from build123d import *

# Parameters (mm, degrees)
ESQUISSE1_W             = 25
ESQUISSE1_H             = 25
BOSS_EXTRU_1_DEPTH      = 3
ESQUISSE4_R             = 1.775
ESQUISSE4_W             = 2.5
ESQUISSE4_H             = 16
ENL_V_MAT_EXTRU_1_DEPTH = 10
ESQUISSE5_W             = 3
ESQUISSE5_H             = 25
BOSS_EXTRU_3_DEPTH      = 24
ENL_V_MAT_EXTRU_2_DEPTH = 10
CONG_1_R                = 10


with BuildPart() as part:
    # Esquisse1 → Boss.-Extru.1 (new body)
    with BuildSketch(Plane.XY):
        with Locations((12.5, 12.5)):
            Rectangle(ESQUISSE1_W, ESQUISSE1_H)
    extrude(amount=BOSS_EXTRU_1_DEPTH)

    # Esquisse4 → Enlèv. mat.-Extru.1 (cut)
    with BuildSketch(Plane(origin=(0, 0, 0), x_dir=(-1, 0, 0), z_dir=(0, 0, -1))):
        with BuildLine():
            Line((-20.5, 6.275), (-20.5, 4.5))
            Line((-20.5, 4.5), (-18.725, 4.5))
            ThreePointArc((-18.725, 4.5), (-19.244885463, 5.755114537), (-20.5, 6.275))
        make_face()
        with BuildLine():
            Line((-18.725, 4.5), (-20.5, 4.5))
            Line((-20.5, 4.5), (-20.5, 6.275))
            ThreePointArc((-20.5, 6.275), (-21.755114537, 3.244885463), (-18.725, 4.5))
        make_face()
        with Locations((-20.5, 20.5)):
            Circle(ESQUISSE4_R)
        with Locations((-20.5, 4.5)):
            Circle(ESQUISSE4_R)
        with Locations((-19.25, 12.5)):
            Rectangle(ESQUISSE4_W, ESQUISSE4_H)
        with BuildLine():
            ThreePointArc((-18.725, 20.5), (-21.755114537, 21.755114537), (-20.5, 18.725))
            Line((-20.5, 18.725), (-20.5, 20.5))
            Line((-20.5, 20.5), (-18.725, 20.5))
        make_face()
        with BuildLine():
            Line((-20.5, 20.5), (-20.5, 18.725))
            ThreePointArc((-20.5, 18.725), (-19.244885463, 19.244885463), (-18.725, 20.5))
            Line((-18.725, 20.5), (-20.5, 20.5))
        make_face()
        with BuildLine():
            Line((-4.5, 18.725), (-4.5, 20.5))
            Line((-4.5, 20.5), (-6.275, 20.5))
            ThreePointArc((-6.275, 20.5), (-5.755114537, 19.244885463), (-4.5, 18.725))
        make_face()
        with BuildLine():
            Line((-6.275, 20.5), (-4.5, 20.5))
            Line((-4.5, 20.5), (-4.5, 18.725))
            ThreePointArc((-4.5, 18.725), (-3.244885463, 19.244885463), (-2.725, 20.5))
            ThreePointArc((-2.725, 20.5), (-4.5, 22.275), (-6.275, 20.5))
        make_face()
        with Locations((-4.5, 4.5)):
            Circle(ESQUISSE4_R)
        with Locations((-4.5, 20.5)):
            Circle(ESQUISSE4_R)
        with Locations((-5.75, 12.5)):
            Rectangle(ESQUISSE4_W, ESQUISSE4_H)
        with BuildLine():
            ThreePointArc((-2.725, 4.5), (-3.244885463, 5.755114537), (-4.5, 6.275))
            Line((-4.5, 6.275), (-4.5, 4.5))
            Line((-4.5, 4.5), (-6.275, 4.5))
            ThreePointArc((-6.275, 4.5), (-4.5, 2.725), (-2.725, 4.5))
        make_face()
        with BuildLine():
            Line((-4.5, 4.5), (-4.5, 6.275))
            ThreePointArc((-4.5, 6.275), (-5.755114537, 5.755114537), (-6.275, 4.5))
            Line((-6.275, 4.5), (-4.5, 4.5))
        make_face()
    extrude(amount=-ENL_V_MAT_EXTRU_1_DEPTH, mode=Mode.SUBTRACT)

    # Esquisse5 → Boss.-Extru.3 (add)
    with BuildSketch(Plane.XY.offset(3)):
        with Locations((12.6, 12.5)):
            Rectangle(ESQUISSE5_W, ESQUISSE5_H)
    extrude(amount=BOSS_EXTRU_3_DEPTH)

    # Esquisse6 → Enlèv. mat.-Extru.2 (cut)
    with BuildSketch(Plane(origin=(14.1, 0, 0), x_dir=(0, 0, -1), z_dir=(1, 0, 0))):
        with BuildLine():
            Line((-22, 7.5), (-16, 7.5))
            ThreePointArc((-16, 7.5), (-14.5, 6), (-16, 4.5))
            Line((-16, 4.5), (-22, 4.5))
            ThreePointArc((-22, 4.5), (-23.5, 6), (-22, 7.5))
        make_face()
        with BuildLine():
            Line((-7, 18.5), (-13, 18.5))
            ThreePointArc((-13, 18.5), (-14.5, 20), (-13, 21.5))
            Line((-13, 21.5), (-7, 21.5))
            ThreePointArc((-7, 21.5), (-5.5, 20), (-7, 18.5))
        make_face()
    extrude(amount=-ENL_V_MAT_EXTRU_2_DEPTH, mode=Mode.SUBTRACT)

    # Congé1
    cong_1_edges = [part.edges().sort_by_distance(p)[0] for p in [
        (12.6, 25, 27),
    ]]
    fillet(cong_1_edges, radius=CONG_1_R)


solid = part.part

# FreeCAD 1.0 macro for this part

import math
import FreeCAD as App
import Part
import Sketcher
Q = App.Units.Quantity


def edges_at(feature, points):
    """Names of the edges that pass closest to the given points."""
    edges = feature.Shape.Edges
    near = lambda p: min(range(len(edges)), key=lambda i: edges[i].distToShape(Part.Vertex(*p))[0])
    return sorted({f"Edge{near(p) + 1}" for p in points})


def add_polygon(sketch, points):
    """Adds a closed chain of lines whose ends are joined by coincident constraints."""
    first, n = sketch.GeometryCount, len(points)
    for a, b in zip(points, points[1:] + points[:1]):
        sketch.addGeometry(Part.LineSegment(App.Vector(*a, 0), App.Vector(*b, 0)), False)
    for i in range(n):
        sketch.addConstraint(Sketcher.Constraint("Coincident", first + i, 2, first + (i + 1) % n, 1))

doc = App.newDocument("Part")
body = doc.addObject("PartDesign::Body", "Body")

# Sketch on XY plane
sketch1 = doc.addObject("Sketcher::SketchObject", "Sketch")
body.addObject(sketch1)
sketch1.AttachmentSupport = (doc.XY_Plane, [""])
sketch1.MapMode = "FlatFace"
add_polygon(sketch1, [(0, 25), (0, 0), (25, 0), (25, 25)])  # lines 0-3
sketch1.addConstraint(Sketcher.Constraint("Vertical", 0))
sketch1.addConstraint(Sketcher.Constraint("Horizontal", 1))
sketch1.addConstraint(Sketcher.Constraint("Vertical", 2))
sketch1.addConstraint(Sketcher.Constraint("Horizontal", 3))
sketch1.addConstraint(Sketcher.Constraint("Coincident", 0, 2, -1, 1))
sketch1.addConstraint(Sketcher.Constraint("Equal", 3, 0))
sketch1.addConstraint(Sketcher.Constraint("DistanceX", 1, 1, 1, 2, Q("25 mm")))
pad1 = doc.addObject("PartDesign::Pad", "Pad")
body.addObject(pad1)
pad1.Profile = sketch1
pad1.Length = 3

# Sketch on XY plane
sketch2 = doc.addObject("Sketcher::SketchObject", "Sketch001")
body.addObject(sketch2)
sketch2.AttachmentSupport = (doc.XY_Plane, [""])
sketch2.MapMode = "FlatFace"
sketch2.addGeometry(Part.LineSegment(App.Vector(20.5, 18.7, 0), App.Vector(20.5, 6.3, 0)), False)
sketch2.addGeometry(Part.ArcOfCircle(Part.Circle(App.Vector(20.5, 4.5, 0), App.Vector(0, 0, 1), 1.8), math.radians(180), math.radians(450)), False)
sketch2.addGeometry(Part.LineSegment(App.Vector(18.7, 4.5, 0), App.Vector(18, 4.5, 0)), False)
sketch2.addGeometry(Part.LineSegment(App.Vector(18, 4.5, 0), App.Vector(18, 20.5, 0)), False)
sketch2.addGeometry(Part.LineSegment(App.Vector(18, 20.5, 0), App.Vector(18.7, 20.5, 0)), False)
sketch2.addGeometry(Part.ArcOfCircle(Part.Circle(App.Vector(20.5, 20.5, 0), App.Vector(0, 0, 1), 1.8), math.radians(-90), math.radians(180)), False)
sketch2.addGeometry(Part.LineSegment(App.Vector(7, 20.5, 0), App.Vector(7, 4.5, 0)), False)
sketch2.addGeometry(Part.LineSegment(App.Vector(7, 4.5, 0), App.Vector(6.3, 4.5, 0)), False)
sketch2.addGeometry(Part.ArcOfCircle(Part.Circle(App.Vector(4.5, 4.5, 0), App.Vector(0, 0, 1), 1.8), math.radians(90), math.radians(360)), False)
sketch2.addGeometry(Part.LineSegment(App.Vector(4.5, 6.3, 0), App.Vector(4.5, 18.7, 0)), False)
sketch2.addGeometry(Part.ArcOfCircle(Part.Circle(App.Vector(4.5, 20.5, 0), App.Vector(0, 0, 1), 1.8), math.radians(180), math.radians(270)), False)
sketch2.addGeometry(Part.ArcOfCircle(Part.Circle(App.Vector(4.5, 20.5, 0), App.Vector(0, 0, 1), 1.8), math.radians(0), math.radians(180)), False)
sketch2.addGeometry(Part.LineSegment(App.Vector(6.3, 20.5, 0), App.Vector(7, 20.5, 0)), False)
sketch2.addConstraint(Sketcher.Constraint("Coincident", 0, 2, 1, 2))
sketch2.addConstraint(Sketcher.Constraint("Coincident", 1, 1, 2, 1))
sketch2.addConstraint(Sketcher.Constraint("Coincident", 2, 2, 3, 1))
sketch2.addConstraint(Sketcher.Constraint("Coincident", 3, 2, 4, 1))
sketch2.addConstraint(Sketcher.Constraint("Coincident", 4, 2, 5, 2))
sketch2.addConstraint(Sketcher.Constraint("Coincident", 5, 1, 0, 1))
sketch2.addConstraint(Sketcher.Constraint("Coincident", 6, 2, 7, 1))
sketch2.addConstraint(Sketcher.Constraint("Coincident", 7, 2, 8, 2))
sketch2.addConstraint(Sketcher.Constraint("Coincident", 8, 1, 9, 1))
sketch2.addConstraint(Sketcher.Constraint("Coincident", 9, 2, 10, 2))
sketch2.addConstraint(Sketcher.Constraint("Tangent", 10, 1, 11, 2))
sketch2.addConstraint(Sketcher.Constraint("Coincident", 11, 1, 12, 1))
sketch2.addConstraint(Sketcher.Constraint("Coincident", 12, 2, 6, 1))
sketch2.addConstraint(Sketcher.Constraint("Vertical", 0))
sketch2.addConstraint(Sketcher.Constraint("Horizontal", 2))
sketch2.addConstraint(Sketcher.Constraint("Vertical", 3))
sketch2.addConstraint(Sketcher.Constraint("Horizontal", 4))
sketch2.addConstraint(Sketcher.Constraint("Vertical", 6))
sketch2.addConstraint(Sketcher.Constraint("Horizontal", 7))
sketch2.addConstraint(Sketcher.Constraint("Vertical", 9))
sketch2.addConstraint(Sketcher.Constraint("Horizontal", 12))
sketch2.addConstraint(Sketcher.Constraint("Equal", 1, 5))
sketch2.addConstraint(Sketcher.Constraint("Equal", 5, 8))
sketch2.addConstraint(Sketcher.Constraint("Equal", 8, 10))
sketch2.addConstraint(Sketcher.Constraint("Equal", 10, 11))
sketch2.addConstraint(Sketcher.Constraint("Horizontal", 1, 3, 8, 3))
sketch2.addConstraint(Sketcher.Constraint("Horizontal", 5, 3, 10, 3))
sketch2.addConstraint(Sketcher.Constraint("Horizontal", 8, 3, 1, 1))
sketch2.addConstraint(Sketcher.Constraint("Horizontal", 11, 3, 3, 2))
sketch2.addConstraint(Sketcher.Constraint("Horizontal", 2, 2, 6, 2))
sketch2.addConstraint(Sketcher.Constraint("Horizontal", 4, 2, 10, 1))
sketch2.addConstraint(Sketcher.Constraint("Horizontal", 10, 1, 11, 1))
sketch2.addConstraint(Sketcher.Constraint("Vertical", 1, 3, 5, 3))
sketch2.addConstraint(Sketcher.Constraint("Vertical", 8, 3, 10, 3))
sketch2.addConstraint(Sketcher.Constraint("Vertical", 5, 3, 0, 2))
sketch2.addConstraint(Sketcher.Constraint("Vertical", 11, 3, 8, 1))
sketch2.addConstraint(Sketcher.Constraint("Equal", 4, 7))
sketch2.addConstraint(Sketcher.Constraint("DistanceY", 3, 1, 3, 2, Q("16 mm")))
sketch2.addConstraint(Sketcher.Constraint("DistanceX", -1, 1, 2, 2, Q("18 mm")))
sketch2.addConstraint(Sketcher.Constraint("DistanceX", -1, 1, 6, 2, Q("7 mm")))
sketch2.addConstraint(Sketcher.Constraint("Radius", 1, Q("1.775 mm")))
sketch2.addConstraint(Sketcher.Constraint("DistanceX", 8, 3, 1, 3, Q("16 mm")))
sketch2.addConstraint(Sketcher.Constraint("DistanceY", -1, 1, 1, 3, Q("4.5 mm")))
pocket1 = doc.addObject("PartDesign::Pocket", "Pocket")
body.addObject(pocket1)
pocket1.Profile = sketch2
pocket1.Length = 10
pocket1.Reversed = True

# Sketch on XY plane
sketch3 = doc.addObject("Sketcher::SketchObject", "Sketch002")
body.addObject(sketch3)
sketch3.AttachmentSupport = (doc.XY_Plane, [""])
sketch3.MapMode = "FlatFace"
sketch3.AttachmentOffset = App.Placement(App.Vector(0, 0, 3), App.Rotation())
add_polygon(sketch3, [(11.1, 25), (11.1, 0), (14.1, 0), (14.1, 25)])  # lines 0-3
sketch3.addConstraint(Sketcher.Constraint("Vertical", 0))
sketch3.addConstraint(Sketcher.Constraint("Horizontal", 1))
sketch3.addConstraint(Sketcher.Constraint("Vertical", 2))
sketch3.addConstraint(Sketcher.Constraint("Horizontal", 3))
sketch3.addConstraint(Sketcher.Constraint("PointOnObject", 0, 2, -1))
sketch3.addConstraint(Sketcher.Constraint("DistanceX", 1, 1, 1, 2, Q("3 mm")))
sketch3.addConstraint(Sketcher.Constraint("DistanceY", 0, 2, 0, 1, Q("25 mm")))
sketch3.addConstraint(Sketcher.Constraint("DistanceX", -1, 1, 0, 2, Q("11.1 mm")))
pad2 = doc.addObject("PartDesign::Pad", "Pad001")
body.addObject(pad2)
pad2.Profile = sketch3
pad2.Length = 24

# Sketch on YZ plane
sketch4 = doc.addObject("Sketcher::SketchObject", "Sketch003")
body.addObject(sketch4)
sketch4.AttachmentSupport = (doc.YZ_Plane, [""])
sketch4.MapMode = "FlatFace"
sketch4.AttachmentOffset = App.Placement(App.Vector(0, 0, 14.1), App.Rotation())
sketch4.addGeometry(Part.LineSegment(App.Vector(7.5, 16, 0), App.Vector(7.5, 22, 0)), False)
sketch4.addGeometry(Part.ArcOfCircle(Part.Circle(App.Vector(6, 22, 0), App.Vector(0, 0, 1), 1.5), math.radians(0), math.radians(180)), False)
sketch4.addGeometry(Part.LineSegment(App.Vector(4.5, 22, 0), App.Vector(4.5, 16, 0)), False)
sketch4.addGeometry(Part.ArcOfCircle(Part.Circle(App.Vector(6, 16, 0), App.Vector(0, 0, 1), 1.5), math.radians(180), math.radians(360)), False)
sketch4.addGeometry(Part.LineSegment(App.Vector(18.5, 13, 0), App.Vector(18.5, 7, 0)), False)
sketch4.addGeometry(Part.ArcOfCircle(Part.Circle(App.Vector(20, 7, 0), App.Vector(0, 0, 1), 1.5), math.radians(180), math.radians(360)), False)
sketch4.addGeometry(Part.LineSegment(App.Vector(21.5, 7, 0), App.Vector(21.5, 13, 0)), False)
sketch4.addGeometry(Part.ArcOfCircle(Part.Circle(App.Vector(20, 13, 0), App.Vector(0, 0, 1), 1.5), math.radians(0), math.radians(180)), False)
sketch4.addConstraint(Sketcher.Constraint("Tangent", 0, 2, 1, 1))
sketch4.addConstraint(Sketcher.Constraint("Tangent", 1, 2, 2, 1))
sketch4.addConstraint(Sketcher.Constraint("Tangent", 2, 2, 3, 1))
sketch4.addConstraint(Sketcher.Constraint("Tangent", 3, 2, 0, 1))
sketch4.addConstraint(Sketcher.Constraint("Tangent", 4, 2, 5, 1))
sketch4.addConstraint(Sketcher.Constraint("Tangent", 5, 2, 6, 1))
sketch4.addConstraint(Sketcher.Constraint("Tangent", 6, 2, 7, 1))
sketch4.addConstraint(Sketcher.Constraint("Tangent", 7, 2, 4, 1))
sketch4.addConstraint(Sketcher.Constraint("Vertical", 0))
sketch4.addConstraint(Sketcher.Constraint("Vertical", 2))
sketch4.addConstraint(Sketcher.Constraint("Vertical", 4))
sketch4.addConstraint(Sketcher.Constraint("Vertical", 6))
sketch4.addConstraint(Sketcher.Constraint("Equal", 3, 5))
sketch4.addConstraint(Sketcher.Constraint("Equal", 2, 4))
sketch4.addConstraint(Sketcher.Constraint("Radius", 1, Q("1.5 mm")))
sketch4.addConstraint(Sketcher.Constraint("DistanceY", 0, 1, 0, 2, Q("6 mm")))
sketch4.addConstraint(Sketcher.Constraint("DistanceX", -1, 1, 1, 3, Q("6 mm")))
sketch4.addConstraint(Sketcher.Constraint("DistanceY", -1, 1, 1, 3, Q("22 mm")))
sketch4.addConstraint(Sketcher.Constraint("DistanceX", -1, 1, 5, 3, Q("20 mm")))
sketch4.addConstraint(Sketcher.Constraint("DistanceY", -1, 1, 5, 3, Q("7 mm")))
pocket2 = doc.addObject("PartDesign::Pocket", "Pocket001")
body.addObject(pocket2)
pocket2.Profile = sketch4
pocket2.Length = 10
doc.recompute()

fillet = doc.addObject("PartDesign::Fillet", "Fillet")
body.addObject(fillet)
fillet.Base = (pocket2, edges_at(pocket2, [(12.6, 25, 27)]))
fillet.Radius = 10

doc.recompute()
